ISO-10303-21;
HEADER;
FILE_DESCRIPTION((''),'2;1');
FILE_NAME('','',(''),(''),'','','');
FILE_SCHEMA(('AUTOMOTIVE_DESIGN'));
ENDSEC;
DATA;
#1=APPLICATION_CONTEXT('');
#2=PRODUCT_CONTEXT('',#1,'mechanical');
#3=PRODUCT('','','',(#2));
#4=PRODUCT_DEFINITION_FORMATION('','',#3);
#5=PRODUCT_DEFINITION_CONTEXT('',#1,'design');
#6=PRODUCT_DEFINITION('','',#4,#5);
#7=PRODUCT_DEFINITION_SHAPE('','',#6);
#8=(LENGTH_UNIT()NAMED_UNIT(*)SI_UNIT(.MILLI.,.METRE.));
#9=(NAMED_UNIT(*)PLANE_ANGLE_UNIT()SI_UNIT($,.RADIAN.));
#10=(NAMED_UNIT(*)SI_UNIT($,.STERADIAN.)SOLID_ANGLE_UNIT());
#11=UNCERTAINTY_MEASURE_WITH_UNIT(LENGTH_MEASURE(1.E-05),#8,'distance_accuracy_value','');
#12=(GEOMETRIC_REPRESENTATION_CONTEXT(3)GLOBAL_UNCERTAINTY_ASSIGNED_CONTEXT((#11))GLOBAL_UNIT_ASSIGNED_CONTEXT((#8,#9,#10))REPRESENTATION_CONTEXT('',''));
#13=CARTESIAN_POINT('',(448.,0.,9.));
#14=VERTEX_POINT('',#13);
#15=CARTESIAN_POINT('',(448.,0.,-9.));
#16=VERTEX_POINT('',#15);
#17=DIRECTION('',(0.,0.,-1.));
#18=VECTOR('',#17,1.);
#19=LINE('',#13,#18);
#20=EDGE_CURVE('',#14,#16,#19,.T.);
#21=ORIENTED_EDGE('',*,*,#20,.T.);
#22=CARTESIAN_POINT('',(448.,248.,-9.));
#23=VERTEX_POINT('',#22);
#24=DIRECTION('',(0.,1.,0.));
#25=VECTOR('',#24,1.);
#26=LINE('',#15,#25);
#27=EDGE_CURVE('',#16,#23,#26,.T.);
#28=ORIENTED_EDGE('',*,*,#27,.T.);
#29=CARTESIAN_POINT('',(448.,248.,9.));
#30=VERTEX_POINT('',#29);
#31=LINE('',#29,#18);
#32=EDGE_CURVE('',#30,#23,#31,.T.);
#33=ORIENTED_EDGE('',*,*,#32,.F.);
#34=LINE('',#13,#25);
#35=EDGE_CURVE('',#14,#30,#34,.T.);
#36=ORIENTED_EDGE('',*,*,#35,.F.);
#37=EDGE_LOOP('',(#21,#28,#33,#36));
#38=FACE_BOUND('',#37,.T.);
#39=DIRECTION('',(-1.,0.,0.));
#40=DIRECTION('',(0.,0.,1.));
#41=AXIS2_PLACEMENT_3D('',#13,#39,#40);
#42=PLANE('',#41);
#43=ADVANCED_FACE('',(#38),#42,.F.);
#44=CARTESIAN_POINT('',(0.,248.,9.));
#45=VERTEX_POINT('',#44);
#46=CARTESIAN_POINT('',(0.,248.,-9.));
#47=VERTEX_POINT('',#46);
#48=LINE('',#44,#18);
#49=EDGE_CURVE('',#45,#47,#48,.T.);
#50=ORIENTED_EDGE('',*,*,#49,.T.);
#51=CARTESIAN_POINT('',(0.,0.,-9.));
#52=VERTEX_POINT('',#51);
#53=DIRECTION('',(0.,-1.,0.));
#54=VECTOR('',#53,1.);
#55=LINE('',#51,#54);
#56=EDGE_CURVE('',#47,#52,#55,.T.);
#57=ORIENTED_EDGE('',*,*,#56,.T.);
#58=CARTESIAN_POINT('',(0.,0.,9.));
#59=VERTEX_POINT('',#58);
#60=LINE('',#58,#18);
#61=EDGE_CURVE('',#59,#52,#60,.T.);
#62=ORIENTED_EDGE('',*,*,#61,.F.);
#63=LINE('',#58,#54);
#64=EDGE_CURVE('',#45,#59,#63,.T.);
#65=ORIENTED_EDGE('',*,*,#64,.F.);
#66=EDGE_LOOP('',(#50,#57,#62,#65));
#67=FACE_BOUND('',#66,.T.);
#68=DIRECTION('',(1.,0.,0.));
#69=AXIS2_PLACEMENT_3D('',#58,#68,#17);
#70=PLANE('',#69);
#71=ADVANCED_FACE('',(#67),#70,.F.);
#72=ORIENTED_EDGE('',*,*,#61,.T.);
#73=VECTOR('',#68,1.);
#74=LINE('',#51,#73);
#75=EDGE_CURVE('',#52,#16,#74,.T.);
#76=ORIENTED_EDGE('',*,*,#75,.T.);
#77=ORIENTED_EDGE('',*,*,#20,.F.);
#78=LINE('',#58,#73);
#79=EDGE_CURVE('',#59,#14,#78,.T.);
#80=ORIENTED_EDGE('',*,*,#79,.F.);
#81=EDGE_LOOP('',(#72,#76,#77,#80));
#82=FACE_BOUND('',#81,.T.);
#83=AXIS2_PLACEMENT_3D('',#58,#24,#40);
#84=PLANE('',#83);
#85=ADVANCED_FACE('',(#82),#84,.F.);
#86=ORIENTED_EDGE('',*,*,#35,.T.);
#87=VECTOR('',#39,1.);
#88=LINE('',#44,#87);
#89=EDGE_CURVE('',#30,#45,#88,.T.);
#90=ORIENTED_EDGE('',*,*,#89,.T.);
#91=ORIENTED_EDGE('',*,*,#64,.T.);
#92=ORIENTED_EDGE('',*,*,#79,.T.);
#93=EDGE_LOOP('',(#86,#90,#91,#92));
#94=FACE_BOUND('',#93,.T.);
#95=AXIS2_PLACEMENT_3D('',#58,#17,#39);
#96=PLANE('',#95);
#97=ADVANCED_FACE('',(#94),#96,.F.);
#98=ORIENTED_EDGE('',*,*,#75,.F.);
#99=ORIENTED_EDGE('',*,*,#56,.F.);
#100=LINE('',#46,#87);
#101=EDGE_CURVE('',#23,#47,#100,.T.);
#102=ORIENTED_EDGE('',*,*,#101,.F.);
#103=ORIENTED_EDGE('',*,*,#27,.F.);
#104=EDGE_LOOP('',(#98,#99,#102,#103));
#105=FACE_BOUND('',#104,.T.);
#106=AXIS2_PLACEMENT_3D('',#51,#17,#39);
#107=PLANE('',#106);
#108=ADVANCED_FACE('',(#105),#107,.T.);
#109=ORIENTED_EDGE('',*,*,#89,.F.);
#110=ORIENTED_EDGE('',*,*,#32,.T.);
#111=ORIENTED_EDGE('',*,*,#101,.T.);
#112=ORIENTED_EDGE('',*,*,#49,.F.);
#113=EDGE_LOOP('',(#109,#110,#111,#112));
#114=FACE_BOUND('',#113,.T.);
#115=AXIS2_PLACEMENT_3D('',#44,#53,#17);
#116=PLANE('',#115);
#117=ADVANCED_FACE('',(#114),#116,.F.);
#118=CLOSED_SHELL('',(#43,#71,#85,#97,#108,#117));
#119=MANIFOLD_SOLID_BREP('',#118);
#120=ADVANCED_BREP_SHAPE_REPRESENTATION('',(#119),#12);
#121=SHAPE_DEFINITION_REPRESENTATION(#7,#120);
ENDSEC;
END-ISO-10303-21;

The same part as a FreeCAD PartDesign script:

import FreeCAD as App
import Part
import Sketcher


def add_polygon(sketch, points):
    """Adds a closed chain of lines whose ends are joined by coincident constraints."""
    first, n = sketch.GeometryCount, len(points)
    for a, b in zip(points, points[1:] + points[:1]):
        sketch.addGeometry(Part.LineSegment(App.Vector(*a, 0), App.Vector(*b, 0)), False)
    for i in range(n):
        sketch.addConstraint(Sketcher.Constraint("Coincident", first + i, 2, first + (i + 1) % n, 1))

doc = App.newDocument("Part")
body = doc.addObject("PartDesign::Body", "Body")

# Sketch on XY plane
sketch1 = body.newObject("Sketcher::SketchObject", "Sketch")
sketch1.AttachmentSupport = (doc.getObject("XY_Plane"), [""])
sketch1.MapMode = "FlatFace"
add_polygon(sketch1, [(0, 248), (0, 0), (448, 0), (448, 248)])  # lines 0-3
sketch1.addConstraint([
    Sketcher.Constraint("Vertical", 0),
    Sketcher.Constraint("Horizontal", 1),
    Sketcher.Constraint("Vertical", 2),
    Sketcher.Constraint("Horizontal", 3),
    Sketcher.Constraint("Coincident", 0, 2, -1, 1),
    Sketcher.Constraint("DistanceX", 1, 1, 1, 2, 448.0),
    Sketcher.Constraint("DistanceY", 0, 2, 0, 1, 248.0),
])
pad1 = body.newObject("PartDesign::Pad", "Pad")
pad1.Profile = sketch1
pad1.Length = 18
pad1.Midplane = True

doc.recompute()
